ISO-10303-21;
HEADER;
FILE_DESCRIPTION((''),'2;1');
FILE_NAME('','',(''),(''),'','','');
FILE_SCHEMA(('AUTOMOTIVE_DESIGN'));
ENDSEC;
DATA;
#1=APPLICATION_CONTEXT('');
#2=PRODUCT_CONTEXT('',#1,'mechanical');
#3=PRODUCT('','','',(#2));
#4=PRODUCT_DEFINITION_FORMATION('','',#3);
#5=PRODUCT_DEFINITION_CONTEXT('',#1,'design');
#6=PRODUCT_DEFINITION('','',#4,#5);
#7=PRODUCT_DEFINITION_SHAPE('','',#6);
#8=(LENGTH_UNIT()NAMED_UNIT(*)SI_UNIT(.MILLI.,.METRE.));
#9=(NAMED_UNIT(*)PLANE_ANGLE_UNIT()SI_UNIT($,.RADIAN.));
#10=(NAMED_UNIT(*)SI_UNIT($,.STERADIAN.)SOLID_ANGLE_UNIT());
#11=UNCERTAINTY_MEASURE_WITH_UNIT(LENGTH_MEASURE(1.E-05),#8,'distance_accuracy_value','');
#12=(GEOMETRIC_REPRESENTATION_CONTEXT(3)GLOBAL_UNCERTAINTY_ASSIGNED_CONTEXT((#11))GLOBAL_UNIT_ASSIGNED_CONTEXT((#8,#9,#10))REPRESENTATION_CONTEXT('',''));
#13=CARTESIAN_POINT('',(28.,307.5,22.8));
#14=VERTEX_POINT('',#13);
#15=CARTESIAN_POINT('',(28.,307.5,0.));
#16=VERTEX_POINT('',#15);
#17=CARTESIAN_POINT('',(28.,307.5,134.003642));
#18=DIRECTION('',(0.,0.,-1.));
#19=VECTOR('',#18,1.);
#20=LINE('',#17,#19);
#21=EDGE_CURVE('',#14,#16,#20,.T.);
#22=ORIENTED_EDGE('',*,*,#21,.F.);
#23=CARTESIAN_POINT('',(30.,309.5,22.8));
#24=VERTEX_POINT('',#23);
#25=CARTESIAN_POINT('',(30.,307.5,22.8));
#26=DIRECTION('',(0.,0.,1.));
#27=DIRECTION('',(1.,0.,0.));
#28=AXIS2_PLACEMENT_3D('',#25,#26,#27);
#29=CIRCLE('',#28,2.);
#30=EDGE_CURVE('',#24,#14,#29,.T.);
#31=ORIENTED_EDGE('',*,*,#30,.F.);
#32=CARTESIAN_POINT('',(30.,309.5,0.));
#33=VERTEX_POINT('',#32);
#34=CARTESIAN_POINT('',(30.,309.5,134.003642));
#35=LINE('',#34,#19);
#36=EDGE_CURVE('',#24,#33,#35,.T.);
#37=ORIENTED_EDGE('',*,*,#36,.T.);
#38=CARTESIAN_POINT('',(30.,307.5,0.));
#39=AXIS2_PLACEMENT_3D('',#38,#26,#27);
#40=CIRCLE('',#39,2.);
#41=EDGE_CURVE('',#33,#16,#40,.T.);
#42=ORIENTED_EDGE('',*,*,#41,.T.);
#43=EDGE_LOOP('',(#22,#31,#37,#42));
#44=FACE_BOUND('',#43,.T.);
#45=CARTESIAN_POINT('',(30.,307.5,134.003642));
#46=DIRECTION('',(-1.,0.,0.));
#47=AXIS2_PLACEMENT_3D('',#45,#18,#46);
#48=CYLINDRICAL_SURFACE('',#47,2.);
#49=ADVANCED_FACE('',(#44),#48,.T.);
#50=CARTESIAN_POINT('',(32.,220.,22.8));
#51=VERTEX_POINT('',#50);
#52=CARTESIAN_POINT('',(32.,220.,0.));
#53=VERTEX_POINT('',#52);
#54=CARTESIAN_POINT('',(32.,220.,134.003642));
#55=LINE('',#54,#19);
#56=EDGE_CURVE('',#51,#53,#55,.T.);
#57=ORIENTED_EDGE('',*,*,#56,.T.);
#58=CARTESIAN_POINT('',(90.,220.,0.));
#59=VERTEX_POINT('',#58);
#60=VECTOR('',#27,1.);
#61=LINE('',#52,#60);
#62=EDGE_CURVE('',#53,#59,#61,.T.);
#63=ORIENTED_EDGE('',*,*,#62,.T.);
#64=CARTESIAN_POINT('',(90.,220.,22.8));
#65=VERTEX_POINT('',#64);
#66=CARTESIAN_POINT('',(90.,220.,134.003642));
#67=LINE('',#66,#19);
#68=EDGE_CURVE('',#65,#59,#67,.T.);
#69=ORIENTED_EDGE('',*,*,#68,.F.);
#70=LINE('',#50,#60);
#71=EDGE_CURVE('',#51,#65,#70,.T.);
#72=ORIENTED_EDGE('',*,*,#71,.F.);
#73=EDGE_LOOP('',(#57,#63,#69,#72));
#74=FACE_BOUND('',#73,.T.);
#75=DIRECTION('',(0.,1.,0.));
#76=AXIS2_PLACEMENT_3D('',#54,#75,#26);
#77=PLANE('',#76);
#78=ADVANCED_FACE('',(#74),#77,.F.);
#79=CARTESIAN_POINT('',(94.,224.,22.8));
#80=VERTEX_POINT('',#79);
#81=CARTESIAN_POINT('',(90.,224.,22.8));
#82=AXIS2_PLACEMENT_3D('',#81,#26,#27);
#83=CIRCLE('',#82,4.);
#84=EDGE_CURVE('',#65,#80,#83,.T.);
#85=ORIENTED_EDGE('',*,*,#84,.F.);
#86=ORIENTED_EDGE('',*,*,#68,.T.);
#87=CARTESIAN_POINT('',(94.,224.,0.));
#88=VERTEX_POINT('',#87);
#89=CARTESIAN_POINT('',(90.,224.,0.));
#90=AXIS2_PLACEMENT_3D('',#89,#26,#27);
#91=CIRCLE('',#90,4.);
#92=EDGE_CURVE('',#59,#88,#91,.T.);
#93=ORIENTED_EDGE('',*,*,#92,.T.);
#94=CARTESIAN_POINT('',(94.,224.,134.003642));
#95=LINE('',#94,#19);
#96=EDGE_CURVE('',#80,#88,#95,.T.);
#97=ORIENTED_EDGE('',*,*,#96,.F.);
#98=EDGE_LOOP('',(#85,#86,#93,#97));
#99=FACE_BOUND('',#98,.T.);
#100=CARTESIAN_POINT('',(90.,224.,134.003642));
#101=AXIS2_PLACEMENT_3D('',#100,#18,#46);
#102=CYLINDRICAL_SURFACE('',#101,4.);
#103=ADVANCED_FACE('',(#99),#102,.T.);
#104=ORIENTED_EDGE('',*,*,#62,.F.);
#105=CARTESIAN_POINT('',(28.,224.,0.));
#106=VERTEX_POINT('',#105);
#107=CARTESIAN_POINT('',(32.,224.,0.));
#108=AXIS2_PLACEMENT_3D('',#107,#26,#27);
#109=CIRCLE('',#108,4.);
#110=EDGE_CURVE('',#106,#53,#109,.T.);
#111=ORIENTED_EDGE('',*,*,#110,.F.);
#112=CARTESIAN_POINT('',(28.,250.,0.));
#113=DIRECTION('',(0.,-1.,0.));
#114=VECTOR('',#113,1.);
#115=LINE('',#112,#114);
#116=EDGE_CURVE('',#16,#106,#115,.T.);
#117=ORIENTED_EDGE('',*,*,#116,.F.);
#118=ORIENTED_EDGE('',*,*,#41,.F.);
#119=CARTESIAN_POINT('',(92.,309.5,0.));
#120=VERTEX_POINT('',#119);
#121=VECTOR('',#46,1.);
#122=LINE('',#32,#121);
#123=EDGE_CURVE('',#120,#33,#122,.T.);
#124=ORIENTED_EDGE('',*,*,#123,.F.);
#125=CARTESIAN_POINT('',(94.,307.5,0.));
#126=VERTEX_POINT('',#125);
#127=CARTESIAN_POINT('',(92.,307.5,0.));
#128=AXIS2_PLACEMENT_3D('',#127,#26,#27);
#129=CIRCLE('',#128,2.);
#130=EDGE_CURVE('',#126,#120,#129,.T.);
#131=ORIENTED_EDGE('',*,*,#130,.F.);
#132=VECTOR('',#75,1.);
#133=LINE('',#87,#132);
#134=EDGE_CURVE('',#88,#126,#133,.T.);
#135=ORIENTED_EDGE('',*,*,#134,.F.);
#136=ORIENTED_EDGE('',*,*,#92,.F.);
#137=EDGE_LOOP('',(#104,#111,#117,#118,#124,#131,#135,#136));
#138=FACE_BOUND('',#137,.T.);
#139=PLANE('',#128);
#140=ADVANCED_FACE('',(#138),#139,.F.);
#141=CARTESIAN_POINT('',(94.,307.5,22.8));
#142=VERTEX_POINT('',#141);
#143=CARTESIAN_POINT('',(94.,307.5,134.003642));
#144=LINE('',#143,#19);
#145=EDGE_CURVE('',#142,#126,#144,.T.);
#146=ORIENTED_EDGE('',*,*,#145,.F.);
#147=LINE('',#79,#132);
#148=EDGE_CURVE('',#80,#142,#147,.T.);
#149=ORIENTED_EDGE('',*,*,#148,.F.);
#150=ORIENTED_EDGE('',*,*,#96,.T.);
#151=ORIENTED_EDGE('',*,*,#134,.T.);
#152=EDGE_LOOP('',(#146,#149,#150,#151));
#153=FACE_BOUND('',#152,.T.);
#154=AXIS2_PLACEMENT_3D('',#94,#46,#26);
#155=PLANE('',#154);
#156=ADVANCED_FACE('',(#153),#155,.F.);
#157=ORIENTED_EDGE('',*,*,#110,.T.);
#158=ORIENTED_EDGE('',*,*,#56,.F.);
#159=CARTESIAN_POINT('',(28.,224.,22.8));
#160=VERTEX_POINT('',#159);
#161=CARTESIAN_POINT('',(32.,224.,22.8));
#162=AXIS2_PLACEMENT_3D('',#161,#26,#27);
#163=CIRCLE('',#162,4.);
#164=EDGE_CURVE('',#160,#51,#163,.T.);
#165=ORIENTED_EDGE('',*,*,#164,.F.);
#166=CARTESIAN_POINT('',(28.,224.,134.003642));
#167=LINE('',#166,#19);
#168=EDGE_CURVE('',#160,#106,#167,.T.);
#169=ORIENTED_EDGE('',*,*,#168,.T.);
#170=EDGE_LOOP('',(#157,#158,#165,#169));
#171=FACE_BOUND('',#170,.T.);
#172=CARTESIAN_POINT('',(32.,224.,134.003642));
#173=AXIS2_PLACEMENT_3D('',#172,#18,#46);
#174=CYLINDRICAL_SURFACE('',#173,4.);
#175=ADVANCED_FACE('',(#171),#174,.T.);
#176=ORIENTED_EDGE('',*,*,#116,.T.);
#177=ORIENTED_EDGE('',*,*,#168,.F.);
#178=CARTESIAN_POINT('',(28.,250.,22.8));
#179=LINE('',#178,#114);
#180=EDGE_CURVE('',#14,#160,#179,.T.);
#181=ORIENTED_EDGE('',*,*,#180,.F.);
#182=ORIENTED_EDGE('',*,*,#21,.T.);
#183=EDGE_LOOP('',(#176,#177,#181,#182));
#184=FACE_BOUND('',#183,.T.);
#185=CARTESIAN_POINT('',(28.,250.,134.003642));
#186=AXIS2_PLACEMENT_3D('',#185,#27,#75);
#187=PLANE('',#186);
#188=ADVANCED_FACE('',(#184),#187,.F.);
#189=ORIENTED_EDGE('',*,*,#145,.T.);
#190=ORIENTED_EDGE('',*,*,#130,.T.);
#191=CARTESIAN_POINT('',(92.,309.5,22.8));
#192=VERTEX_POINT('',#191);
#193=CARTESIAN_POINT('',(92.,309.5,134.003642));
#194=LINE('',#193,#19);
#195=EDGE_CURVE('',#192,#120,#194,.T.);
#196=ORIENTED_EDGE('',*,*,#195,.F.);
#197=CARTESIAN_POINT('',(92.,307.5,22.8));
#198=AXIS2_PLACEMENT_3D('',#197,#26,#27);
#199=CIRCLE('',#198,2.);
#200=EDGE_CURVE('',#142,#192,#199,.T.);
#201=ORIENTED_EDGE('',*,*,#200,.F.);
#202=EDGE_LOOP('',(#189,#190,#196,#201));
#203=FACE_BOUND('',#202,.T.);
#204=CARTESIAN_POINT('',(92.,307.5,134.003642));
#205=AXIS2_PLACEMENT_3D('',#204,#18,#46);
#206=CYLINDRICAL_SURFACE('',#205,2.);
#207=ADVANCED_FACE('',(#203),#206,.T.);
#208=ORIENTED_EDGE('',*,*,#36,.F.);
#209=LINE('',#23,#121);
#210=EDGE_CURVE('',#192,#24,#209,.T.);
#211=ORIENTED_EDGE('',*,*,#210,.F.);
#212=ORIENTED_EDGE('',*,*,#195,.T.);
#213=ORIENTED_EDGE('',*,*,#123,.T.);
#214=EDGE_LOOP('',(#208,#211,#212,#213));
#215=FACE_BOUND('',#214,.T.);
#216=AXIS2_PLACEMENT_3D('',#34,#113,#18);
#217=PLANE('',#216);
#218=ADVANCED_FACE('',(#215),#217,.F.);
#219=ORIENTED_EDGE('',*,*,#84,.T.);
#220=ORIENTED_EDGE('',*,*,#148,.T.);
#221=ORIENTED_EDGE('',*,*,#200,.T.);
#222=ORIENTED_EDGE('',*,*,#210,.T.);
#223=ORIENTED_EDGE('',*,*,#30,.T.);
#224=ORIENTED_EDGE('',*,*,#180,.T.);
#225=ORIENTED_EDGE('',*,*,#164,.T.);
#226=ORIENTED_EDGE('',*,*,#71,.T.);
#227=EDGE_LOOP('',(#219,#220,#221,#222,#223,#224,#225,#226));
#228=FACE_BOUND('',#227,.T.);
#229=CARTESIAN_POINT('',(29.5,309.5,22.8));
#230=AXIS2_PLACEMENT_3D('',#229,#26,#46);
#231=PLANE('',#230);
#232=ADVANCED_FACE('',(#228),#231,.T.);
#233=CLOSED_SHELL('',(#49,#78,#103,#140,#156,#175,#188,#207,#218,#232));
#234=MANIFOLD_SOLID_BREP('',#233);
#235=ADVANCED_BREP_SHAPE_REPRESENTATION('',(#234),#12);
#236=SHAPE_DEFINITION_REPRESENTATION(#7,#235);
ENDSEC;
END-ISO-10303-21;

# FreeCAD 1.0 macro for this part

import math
import FreeCAD as App
import Part
import Sketcher
from FreeCAD import Vector

doc = App.newDocument("Part")
body = doc.addObject("PartDesign::Body", "Body")

# Sketch on XY plane
sketch1 = doc.addObject("Sketcher::SketchObject", "Sketch")
body.addObject(sketch1)
sketch1.AttachmentSupport = (doc.XY_Plane, [""])
sketch1.MapMode = "FlatFace"
sketch1.addGeometry([
    Part.ArcOfCircle(Part.Circle(Vector(30, 307.5, 0), Vector(0, 0, 1), 2), math.radians(90), math.radians(180)),  # 0
    Part.LineSegment(Vector(28, 307.5, 0), Vector(28, 224, 0)),  # 1
    Part.ArcOfCircle(Part.Circle(Vector(32, 224, 0), Vector(0, 0, 1), 4), math.radians(180), math.radians(270)),  # 2
    Part.LineSegment(Vector(32, 220, 0), Vector(90, 220, 0)),  # 3
    Part.ArcOfCircle(Part.Circle(Vector(90, 224, 0), Vector(0, 0, 1), 4), math.radians(-90), math.radians(0)),  # 4
    Part.LineSegment(Vector(94, 224, 0), Vector(94, 307.5, 0)),  # 5
    Part.ArcOfCircle(Part.Circle(Vector(92, 307.5, 0), Vector(0, 0, 1), 2), math.radians(0), math.radians(90)),  # 6
    Part.LineSegment(Vector(92, 309.5, 0), Vector(30, 309.5, 0)),  # 7
], False)
sketch1.addConstraint([
    Sketcher.Constraint("Tangent", 0, 2, 1, 1),
    Sketcher.Constraint("Tangent", 1, 2, 2, 1),
    Sketcher.Constraint("Tangent", 2, 2, 3, 1),
    Sketcher.Constraint("Tangent", 3, 2, 4, 1),
    Sketcher.Constraint("Tangent", 4, 2, 5, 1),
    Sketcher.Constraint("Tangent", 5, 2, 6, 1),
    Sketcher.Constraint("Tangent", 6, 2, 7, 1),
    Sketcher.Constraint("Tangent", 7, 2, 0, 1),
    Sketcher.Constraint("Vertical", 1),
    Sketcher.Constraint("Horizontal", 3),
    Sketcher.Constraint("Vertical", 5),
    Sketcher.Constraint("Horizontal", 7),
    Sketcher.Constraint("Equal", 2, 4),
    Sketcher.Constraint("Equal", 0, 6),
    Sketcher.Constraint("Radius", 0, 2.0),
    Sketcher.Constraint("Radius", 2, 4.0),
    Sketcher.Constraint("DistanceX", 3, 1, 3, 2, 58.0),
    Sketcher.Constraint("DistanceY", 1, 2, 1, 1, 83.5),
    Sketcher.Constraint("DistanceX", -1, 1, 0, 3, 30.0),
    Sketcher.Constraint("DistanceY", -1, 1, 2, 3, 224.0),
])
pad1 = doc.addObject("PartDesign::Pad", "Pad")
body.addObject(pad1)
pad1.Profile = sketch1
pad1.Length = 22.8

doc.recompute()
